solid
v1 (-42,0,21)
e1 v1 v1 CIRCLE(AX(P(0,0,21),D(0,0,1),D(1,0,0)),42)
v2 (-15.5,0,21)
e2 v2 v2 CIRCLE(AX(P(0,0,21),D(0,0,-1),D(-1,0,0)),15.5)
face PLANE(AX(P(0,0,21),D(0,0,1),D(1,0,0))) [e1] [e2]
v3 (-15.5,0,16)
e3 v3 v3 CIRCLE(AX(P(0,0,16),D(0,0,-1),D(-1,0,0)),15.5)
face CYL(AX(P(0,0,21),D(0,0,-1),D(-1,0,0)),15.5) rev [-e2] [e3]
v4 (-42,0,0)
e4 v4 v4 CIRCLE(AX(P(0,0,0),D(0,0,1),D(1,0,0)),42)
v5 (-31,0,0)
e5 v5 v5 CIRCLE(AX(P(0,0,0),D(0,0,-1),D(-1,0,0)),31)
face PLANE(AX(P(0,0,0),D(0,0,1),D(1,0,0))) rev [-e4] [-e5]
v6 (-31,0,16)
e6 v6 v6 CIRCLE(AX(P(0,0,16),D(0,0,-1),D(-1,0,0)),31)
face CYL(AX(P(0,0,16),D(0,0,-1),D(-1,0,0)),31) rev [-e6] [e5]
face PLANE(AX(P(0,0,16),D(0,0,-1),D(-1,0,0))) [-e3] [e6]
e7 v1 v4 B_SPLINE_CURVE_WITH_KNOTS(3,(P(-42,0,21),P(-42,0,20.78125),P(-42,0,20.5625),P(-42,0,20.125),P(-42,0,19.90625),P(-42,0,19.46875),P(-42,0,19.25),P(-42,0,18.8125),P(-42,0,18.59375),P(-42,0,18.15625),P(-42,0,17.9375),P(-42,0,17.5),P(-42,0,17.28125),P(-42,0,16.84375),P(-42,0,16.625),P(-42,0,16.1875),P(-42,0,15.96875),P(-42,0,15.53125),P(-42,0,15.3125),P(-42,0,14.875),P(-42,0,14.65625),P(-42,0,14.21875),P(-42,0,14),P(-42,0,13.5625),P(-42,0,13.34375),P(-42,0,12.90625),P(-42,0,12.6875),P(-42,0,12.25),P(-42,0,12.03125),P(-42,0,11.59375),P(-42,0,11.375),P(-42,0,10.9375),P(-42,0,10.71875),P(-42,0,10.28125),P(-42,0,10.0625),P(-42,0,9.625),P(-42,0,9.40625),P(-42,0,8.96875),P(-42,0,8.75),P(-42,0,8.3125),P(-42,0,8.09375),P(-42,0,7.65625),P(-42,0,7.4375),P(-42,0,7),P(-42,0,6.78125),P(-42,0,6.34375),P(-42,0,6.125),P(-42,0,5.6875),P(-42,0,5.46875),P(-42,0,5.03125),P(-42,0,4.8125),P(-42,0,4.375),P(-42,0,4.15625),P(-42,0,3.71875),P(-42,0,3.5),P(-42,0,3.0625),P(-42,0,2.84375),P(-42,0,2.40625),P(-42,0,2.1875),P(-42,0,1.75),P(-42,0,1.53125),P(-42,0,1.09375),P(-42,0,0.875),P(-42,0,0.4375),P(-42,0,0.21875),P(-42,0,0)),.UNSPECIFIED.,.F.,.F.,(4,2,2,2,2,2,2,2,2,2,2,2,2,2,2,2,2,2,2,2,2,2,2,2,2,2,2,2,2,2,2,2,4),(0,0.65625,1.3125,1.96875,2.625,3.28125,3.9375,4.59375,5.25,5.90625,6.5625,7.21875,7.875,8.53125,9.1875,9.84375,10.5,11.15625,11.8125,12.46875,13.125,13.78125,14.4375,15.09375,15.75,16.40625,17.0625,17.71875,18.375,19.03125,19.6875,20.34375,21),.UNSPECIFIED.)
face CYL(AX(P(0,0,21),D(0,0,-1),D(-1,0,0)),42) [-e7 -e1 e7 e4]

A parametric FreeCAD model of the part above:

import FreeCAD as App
import Part
import Sketcher

V = App.Vector

doc = App.newDocument("Part")
body = doc.addObject("PartDesign::Body", "Body")

# Sketch on XY plane
sketch1 = body.newObject("Sketcher::SketchObject", "Sketch")
sketch1.AttachmentSupport = (doc.getObject("XY_Plane"), [""])
sketch1.MapMode = "FlatFace"
sketch1.addGeometry(Part.Circle(V(0, 0, 0), V(0, 0, 1), 42), False)
sketch1.addConstraint(Sketcher.Constraint("Coincident", 0, 3, -1, 1))
sketch1.addConstraint(Sketcher.Constraint("Diameter", 0, 84.0))
pad1 = body.newObject("PartDesign::Pad", "Pad")
pad1.Profile = sketch1
pad1.Length = 21

# Sketch on XY plane
sketch2 = body.newObject("Sketcher::SketchObject", "Sketch001")
sketch2.AttachmentSupport = (doc.getObject("XY_Plane"), [""])
sketch2.MapMode = "FlatFace"
sketch2.addGeometry(Part.Circle(V(0, 0, 0), V(0, 0, 1), 31), False)
sketch2.addConstraint(Sketcher.Constraint("Coincident", 0, 3, -1, 1))
sketch2.addConstraint(Sketcher.Constraint("Diameter", 0, 62.0))
pocket1 = body.newObject("PartDesign::Pocket", "Pocket")
pocket1.Profile = sketch2
pocket1.Length = 16
pocket1.Reversed = True

# Sketch on XY plane
sketch3 = body.newObject("Sketcher::SketchObject", "Sketch002")
sketch3.AttachmentSupport = (doc.getObject("XY_Plane"), [""])
sketch3.MapMode = "FlatFace"
sketch3.AttachmentOffset = App.Placement(V(0, 0, 16), App.Rotation())
sketch3.addGeometry(Part.Circle(V(0, 0, 0), V(0, 0, 1), 15.5), False)
sketch3.addConstraint(Sketcher.Constraint("Coincident", 0, 3, -1, 1))
sketch3.addConstraint(Sketcher.Constraint("Diameter", 0, 31.0))
pocket2 = body.newObject("PartDesign::Pocket", "Pocket001")
pocket2.Profile = sketch3
pocket2.Type = "ThroughAll"
pocket2.Reversed = True

doc.recompute()
